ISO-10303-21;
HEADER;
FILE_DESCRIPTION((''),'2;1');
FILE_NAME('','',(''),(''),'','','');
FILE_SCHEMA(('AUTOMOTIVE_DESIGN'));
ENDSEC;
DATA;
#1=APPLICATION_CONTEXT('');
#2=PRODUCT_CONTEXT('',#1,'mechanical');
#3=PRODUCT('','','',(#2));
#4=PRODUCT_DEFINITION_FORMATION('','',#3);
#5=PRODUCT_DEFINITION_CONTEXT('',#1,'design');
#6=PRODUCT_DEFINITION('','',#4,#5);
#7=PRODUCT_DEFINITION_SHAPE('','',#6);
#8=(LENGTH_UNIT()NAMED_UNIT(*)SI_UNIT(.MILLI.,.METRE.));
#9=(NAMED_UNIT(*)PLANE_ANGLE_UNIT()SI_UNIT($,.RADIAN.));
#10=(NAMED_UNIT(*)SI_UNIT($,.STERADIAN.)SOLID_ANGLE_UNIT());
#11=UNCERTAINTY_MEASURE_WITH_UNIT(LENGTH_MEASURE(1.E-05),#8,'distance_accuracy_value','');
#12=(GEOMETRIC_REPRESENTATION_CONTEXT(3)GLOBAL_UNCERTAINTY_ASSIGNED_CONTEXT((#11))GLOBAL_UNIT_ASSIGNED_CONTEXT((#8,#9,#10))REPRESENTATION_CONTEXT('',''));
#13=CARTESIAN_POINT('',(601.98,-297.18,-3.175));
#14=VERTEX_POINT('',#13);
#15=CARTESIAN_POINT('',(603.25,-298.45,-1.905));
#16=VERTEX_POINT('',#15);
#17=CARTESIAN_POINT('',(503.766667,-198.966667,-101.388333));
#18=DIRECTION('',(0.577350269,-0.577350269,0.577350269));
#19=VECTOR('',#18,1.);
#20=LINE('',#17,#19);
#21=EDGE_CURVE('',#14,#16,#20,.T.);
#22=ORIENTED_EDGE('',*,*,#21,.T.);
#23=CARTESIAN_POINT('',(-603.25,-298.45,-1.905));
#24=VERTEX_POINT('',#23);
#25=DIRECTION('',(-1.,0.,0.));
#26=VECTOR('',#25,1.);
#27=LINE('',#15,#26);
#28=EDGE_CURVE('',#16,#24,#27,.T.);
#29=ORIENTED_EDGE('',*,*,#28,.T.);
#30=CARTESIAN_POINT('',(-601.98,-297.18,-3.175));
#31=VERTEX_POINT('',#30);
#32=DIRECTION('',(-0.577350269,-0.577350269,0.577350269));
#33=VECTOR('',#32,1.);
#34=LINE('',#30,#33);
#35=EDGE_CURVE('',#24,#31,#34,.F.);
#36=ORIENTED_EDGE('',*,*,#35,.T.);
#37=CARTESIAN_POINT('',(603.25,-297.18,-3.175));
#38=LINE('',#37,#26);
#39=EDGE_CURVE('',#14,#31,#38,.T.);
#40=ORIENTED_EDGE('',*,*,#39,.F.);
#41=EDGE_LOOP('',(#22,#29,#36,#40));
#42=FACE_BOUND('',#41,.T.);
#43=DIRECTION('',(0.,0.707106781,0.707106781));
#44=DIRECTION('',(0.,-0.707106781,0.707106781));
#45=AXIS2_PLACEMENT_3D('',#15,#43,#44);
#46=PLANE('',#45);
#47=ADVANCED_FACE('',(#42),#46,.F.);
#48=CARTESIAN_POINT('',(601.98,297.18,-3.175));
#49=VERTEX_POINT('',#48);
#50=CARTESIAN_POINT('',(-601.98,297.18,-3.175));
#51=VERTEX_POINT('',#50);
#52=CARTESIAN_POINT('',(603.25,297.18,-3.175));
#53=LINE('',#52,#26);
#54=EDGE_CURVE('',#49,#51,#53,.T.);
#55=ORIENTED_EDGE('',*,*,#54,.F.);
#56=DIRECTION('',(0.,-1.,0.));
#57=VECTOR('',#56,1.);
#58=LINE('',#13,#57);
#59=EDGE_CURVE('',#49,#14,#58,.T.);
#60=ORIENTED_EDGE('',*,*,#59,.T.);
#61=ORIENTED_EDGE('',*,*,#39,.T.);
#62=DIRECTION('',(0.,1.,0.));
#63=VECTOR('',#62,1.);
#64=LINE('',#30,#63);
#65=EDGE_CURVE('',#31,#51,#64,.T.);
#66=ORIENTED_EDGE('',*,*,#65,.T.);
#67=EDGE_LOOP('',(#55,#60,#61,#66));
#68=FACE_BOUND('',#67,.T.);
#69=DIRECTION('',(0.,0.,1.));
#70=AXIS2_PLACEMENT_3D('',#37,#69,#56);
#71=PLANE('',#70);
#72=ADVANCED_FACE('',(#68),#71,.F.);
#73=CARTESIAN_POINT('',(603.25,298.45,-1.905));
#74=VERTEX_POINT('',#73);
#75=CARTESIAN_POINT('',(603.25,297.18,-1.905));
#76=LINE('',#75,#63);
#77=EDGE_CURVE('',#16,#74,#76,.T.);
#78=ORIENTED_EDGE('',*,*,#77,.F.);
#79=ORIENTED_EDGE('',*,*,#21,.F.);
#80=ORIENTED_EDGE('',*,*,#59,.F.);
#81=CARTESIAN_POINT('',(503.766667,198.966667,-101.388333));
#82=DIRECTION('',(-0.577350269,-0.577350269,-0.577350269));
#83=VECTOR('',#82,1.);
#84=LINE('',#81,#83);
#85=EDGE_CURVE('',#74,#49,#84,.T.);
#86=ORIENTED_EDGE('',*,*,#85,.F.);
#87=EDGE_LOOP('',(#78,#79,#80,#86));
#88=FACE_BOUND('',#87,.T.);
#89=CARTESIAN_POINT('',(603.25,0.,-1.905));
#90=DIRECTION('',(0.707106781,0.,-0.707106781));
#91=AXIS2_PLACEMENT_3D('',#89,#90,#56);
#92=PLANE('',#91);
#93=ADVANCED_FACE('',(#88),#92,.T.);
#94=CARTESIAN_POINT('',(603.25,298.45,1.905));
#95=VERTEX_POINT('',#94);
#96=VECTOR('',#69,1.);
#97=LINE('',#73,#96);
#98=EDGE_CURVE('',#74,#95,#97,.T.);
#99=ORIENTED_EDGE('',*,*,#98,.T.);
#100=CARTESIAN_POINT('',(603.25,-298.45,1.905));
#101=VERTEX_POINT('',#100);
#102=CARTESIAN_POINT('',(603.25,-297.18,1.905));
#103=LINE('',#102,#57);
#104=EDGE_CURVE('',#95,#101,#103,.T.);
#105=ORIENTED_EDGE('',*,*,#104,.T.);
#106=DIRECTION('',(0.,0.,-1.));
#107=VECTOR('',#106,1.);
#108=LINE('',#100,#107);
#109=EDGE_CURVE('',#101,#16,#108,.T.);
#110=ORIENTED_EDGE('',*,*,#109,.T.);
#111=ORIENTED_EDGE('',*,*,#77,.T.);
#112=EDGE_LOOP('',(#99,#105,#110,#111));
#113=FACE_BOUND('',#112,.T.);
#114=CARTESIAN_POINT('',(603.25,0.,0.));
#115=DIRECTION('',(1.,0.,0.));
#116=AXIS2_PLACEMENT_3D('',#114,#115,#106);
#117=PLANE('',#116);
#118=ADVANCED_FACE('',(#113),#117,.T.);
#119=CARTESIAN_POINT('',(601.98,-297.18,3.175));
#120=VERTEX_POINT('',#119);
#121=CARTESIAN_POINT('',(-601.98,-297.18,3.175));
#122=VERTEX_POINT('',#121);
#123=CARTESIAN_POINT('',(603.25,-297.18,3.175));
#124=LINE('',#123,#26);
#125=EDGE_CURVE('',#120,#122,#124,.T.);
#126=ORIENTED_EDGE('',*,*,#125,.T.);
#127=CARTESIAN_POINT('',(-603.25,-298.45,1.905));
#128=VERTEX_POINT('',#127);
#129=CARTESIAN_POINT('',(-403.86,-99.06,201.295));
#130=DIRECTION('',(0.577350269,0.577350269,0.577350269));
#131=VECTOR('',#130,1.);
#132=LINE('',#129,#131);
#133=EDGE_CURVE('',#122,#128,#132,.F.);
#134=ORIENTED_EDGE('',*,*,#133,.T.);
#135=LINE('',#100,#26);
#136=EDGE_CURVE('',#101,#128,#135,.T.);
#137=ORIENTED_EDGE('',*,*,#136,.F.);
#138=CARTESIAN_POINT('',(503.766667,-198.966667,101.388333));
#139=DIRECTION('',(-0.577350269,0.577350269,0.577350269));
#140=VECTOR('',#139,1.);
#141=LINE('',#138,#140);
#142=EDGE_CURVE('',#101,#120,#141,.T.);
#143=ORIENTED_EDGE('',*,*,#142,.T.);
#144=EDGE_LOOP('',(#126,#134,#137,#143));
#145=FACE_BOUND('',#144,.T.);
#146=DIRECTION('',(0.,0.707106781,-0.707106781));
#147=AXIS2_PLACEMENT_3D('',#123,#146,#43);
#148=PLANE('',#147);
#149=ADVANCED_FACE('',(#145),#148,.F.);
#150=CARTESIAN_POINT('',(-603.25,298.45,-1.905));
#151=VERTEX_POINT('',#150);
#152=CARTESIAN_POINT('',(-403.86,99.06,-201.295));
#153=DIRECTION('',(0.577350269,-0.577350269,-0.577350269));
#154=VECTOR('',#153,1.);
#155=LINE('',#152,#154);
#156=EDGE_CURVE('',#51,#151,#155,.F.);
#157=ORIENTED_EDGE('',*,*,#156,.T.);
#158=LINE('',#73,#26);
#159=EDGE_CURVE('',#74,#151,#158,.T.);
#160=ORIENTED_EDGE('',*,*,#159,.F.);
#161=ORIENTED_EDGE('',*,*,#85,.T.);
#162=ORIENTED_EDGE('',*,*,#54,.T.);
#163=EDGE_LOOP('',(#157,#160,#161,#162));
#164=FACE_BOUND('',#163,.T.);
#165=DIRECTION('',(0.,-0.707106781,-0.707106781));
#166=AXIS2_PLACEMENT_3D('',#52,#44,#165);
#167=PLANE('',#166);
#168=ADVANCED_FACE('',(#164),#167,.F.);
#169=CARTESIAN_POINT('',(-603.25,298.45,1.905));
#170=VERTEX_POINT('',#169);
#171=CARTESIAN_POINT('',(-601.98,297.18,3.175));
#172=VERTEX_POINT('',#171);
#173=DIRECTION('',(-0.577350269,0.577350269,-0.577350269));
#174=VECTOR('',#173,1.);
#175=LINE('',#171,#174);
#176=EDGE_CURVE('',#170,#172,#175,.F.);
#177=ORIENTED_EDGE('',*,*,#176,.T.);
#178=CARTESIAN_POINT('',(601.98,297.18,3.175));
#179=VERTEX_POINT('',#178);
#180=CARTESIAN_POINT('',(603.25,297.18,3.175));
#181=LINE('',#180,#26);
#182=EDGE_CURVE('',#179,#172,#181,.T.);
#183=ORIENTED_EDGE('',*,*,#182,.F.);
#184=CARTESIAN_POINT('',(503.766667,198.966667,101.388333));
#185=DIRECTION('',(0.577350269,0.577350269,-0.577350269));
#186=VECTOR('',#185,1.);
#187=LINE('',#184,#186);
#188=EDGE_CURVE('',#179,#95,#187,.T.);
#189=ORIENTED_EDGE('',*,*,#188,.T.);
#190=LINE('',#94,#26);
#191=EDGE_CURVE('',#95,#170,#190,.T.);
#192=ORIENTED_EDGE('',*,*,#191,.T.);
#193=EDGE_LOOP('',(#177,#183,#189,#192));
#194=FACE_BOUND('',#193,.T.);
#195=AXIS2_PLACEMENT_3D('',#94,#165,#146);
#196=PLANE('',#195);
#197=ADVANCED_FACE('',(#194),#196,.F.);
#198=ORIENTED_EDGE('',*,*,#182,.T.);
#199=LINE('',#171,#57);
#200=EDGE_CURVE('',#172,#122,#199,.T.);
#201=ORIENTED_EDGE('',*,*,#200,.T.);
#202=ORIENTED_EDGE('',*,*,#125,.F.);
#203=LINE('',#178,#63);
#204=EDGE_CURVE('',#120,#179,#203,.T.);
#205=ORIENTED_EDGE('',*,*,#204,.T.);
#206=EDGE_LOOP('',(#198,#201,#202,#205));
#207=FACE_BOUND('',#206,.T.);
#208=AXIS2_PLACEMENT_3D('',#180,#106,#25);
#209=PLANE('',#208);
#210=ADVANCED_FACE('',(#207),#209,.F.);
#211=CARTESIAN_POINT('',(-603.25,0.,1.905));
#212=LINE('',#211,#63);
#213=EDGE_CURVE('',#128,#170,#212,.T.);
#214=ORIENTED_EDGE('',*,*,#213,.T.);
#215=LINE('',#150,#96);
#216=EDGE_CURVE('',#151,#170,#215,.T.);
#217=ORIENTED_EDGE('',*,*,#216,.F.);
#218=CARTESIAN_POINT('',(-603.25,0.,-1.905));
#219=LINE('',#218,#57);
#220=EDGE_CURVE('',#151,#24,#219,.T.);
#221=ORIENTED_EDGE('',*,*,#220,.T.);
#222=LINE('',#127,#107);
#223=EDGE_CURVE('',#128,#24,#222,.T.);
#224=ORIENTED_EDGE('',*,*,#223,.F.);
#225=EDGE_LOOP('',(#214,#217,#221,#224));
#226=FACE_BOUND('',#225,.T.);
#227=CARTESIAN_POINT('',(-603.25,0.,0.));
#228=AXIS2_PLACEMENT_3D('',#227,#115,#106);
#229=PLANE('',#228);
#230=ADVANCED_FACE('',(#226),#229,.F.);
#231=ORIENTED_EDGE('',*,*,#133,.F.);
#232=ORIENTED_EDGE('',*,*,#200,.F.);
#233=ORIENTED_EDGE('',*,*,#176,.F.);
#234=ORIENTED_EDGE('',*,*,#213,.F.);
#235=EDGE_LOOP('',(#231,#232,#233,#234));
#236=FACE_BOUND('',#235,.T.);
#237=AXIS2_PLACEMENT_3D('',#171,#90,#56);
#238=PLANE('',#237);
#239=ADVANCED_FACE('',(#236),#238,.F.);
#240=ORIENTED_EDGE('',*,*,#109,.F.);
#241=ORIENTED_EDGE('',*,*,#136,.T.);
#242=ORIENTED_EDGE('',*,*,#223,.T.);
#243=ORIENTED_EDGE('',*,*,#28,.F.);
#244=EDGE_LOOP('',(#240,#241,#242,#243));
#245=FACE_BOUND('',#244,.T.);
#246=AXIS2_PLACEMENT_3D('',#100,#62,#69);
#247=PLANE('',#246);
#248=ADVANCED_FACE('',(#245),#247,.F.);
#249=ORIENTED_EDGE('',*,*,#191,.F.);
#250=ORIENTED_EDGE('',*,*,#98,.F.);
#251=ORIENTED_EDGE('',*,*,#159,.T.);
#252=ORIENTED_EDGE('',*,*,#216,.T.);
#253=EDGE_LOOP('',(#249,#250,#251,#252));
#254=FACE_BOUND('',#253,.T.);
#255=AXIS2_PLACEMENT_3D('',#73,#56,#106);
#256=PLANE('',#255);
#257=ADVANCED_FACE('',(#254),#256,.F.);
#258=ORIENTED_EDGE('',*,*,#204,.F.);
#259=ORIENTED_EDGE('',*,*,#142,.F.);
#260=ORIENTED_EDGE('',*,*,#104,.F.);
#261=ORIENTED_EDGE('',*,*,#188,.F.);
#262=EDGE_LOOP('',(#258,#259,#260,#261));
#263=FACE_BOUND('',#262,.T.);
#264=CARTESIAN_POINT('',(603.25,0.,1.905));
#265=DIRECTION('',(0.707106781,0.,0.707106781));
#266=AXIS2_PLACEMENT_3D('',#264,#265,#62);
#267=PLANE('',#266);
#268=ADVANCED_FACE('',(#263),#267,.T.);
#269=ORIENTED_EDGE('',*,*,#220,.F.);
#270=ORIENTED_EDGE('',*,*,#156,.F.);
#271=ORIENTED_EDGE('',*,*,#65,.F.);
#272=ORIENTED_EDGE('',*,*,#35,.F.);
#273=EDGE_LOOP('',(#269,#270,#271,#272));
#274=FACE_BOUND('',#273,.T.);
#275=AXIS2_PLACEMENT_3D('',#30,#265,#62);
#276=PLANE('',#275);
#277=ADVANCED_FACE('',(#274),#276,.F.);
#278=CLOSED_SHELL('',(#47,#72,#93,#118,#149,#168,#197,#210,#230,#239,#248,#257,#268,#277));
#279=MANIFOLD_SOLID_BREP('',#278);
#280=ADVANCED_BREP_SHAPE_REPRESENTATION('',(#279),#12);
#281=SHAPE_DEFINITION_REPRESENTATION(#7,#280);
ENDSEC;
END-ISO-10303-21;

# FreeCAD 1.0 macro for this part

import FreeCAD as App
import Part
import Sketcher

V = App.Vector
Q = App.Units.Quantity


def edges_at(feature, points):
    """Names of the edges that pass closest to the given points."""
    edges = feature.Shape.Edges
    near = lambda p: min(range(len(edges)), key=lambda i: edges[i].distToShape(Part.Vertex(*p))[0])
    return sorted({f"Edge{near(p) + 1}" for p in points})

doc = App.newDocument("Part")
body = doc.addObject("PartDesign::Body", "Body")

sketch1 = doc.addObject("Sketcher::SketchObject", "Sketch")
body.addObject(sketch1)
sketch1.AttachmentSupport = (doc.YZ_Plane, [""])
sketch1.MapMode = "FlatFace"
sketch1.addGeometry(Part.LineSegment(V(-297.2, -3.2, 0), V(297.2, -3.2, 0)), False)
sketch1.addGeometry(Part.LineSegment(V(297.2, -3.2, 0), V(298.4, -1.9, 0)), False)
sketch1.addGeometry(Part.LineSegment(V(298.4, -1.9, 0), V(298.4, 1.9, 0)), False)
sketch1.addGeometry(Part.LineSegment(V(298.4, 1.9, 0), V(297.2, 3.2, 0)), False)
sketch1.addGeometry(Part.LineSegment(V(297.2, 3.2, 0), V(-297.2, 3.2, 0)), False)
sketch1.addGeometry(Part.LineSegment(V(-297.2, 3.2, 0), V(-298.4, 1.9, 0)), False)
sketch1.addGeometry(Part.LineSegment(V(-298.4, 1.9, 0), V(-298.4, -1.9, 0)), False)
sketch1.addGeometry(Part.LineSegment(V(-298.4, -1.9, 0), V(-297.2, -3.2, 0)), False)
sketch1.addConstraint(Sketcher.Constraint("Coincident", 0, 2, 1, 1))
sketch1.addConstraint(Sketcher.Constraint("Coincident", 1, 2, 2, 1))
sketch1.addConstraint(Sketcher.Constraint("Coincident", 2, 2, 3, 1))
sketch1.addConstraint(Sketcher.Constraint("Coincident", 3, 2, 4, 1))
sketch1.addConstraint(Sketcher.Constraint("Coincident", 4, 2, 5, 1))
sketch1.addConstraint(Sketcher.Constraint("Coincident", 5, 2, 6, 1))
sketch1.addConstraint(Sketcher.Constraint("Coincident", 6, 2, 7, 1))
sketch1.addConstraint(Sketcher.Constraint("Coincident", 7, 2, 0, 1))
sketch1.addConstraint(Sketcher.Constraint("Horizontal", 0))
sketch1.addConstraint(Sketcher.Constraint("Vertical", 2))
sketch1.addConstraint(Sketcher.Constraint("Horizontal", 4))
sketch1.addConstraint(Sketcher.Constraint("Vertical", 6))
sketch1.addConstraint(Sketcher.Constraint("Symmetric", 0, 2, 4, 2, -1, 1))
sketch1.addConstraint(Sketcher.Constraint("Symmetric", 1, 2, 5, 2, -1, 1))
sketch1.addConstraint(Sketcher.Constraint("Perpendicular", 1, 3))
sketch1.addConstraint(Sketcher.Constraint("Perpendicular", 5, 7))
sketch1.addConstraint(Sketcher.Constraint("Horizontal", 2, 2, 5, 2))
sketch1.addConstraint(Sketcher.Constraint("Horizontal", 1, 2, 6, 2))
sketch1.addConstraint(Sketcher.Constraint("Vertical", 0, 2, 3, 2))
sketch1.addConstraint(Sketcher.Constraint("DistanceX", 0, 1, 0, 2, Q("23.4 in")))
sketch1.addConstraint(Sketcher.Constraint("DistanceY", 2, 1, 2, 2, Q("0.15 in")))
sketch1.addConstraint(Sketcher.Constraint("DistanceY", 0, 2, 2, 2, Q("0.2 in")))
pad1 = doc.addObject("PartDesign::Pad", "Pad")
body.addObject(pad1)
pad1.Profile = sketch1
pad1.Type = "TwoLengths"
pad1.Length = Q("23.75 in")
pad1.Length2 = Q("23.75 in")
doc.recompute()

chamfer = doc.addObject("PartDesign::Chamfer", "Chamfer")
body.addObject(chamfer)
chamfer.Base = (pad1, edges_at(pad1, [
    (-603.25, 0, -3.175),
    (-603.25, 0, 3.175),
    (603.25, 0, -3.175),
    (603.25, 0, 3.175),
]))
chamfer.Size = Q("0.05 in")

doc.recompute()
